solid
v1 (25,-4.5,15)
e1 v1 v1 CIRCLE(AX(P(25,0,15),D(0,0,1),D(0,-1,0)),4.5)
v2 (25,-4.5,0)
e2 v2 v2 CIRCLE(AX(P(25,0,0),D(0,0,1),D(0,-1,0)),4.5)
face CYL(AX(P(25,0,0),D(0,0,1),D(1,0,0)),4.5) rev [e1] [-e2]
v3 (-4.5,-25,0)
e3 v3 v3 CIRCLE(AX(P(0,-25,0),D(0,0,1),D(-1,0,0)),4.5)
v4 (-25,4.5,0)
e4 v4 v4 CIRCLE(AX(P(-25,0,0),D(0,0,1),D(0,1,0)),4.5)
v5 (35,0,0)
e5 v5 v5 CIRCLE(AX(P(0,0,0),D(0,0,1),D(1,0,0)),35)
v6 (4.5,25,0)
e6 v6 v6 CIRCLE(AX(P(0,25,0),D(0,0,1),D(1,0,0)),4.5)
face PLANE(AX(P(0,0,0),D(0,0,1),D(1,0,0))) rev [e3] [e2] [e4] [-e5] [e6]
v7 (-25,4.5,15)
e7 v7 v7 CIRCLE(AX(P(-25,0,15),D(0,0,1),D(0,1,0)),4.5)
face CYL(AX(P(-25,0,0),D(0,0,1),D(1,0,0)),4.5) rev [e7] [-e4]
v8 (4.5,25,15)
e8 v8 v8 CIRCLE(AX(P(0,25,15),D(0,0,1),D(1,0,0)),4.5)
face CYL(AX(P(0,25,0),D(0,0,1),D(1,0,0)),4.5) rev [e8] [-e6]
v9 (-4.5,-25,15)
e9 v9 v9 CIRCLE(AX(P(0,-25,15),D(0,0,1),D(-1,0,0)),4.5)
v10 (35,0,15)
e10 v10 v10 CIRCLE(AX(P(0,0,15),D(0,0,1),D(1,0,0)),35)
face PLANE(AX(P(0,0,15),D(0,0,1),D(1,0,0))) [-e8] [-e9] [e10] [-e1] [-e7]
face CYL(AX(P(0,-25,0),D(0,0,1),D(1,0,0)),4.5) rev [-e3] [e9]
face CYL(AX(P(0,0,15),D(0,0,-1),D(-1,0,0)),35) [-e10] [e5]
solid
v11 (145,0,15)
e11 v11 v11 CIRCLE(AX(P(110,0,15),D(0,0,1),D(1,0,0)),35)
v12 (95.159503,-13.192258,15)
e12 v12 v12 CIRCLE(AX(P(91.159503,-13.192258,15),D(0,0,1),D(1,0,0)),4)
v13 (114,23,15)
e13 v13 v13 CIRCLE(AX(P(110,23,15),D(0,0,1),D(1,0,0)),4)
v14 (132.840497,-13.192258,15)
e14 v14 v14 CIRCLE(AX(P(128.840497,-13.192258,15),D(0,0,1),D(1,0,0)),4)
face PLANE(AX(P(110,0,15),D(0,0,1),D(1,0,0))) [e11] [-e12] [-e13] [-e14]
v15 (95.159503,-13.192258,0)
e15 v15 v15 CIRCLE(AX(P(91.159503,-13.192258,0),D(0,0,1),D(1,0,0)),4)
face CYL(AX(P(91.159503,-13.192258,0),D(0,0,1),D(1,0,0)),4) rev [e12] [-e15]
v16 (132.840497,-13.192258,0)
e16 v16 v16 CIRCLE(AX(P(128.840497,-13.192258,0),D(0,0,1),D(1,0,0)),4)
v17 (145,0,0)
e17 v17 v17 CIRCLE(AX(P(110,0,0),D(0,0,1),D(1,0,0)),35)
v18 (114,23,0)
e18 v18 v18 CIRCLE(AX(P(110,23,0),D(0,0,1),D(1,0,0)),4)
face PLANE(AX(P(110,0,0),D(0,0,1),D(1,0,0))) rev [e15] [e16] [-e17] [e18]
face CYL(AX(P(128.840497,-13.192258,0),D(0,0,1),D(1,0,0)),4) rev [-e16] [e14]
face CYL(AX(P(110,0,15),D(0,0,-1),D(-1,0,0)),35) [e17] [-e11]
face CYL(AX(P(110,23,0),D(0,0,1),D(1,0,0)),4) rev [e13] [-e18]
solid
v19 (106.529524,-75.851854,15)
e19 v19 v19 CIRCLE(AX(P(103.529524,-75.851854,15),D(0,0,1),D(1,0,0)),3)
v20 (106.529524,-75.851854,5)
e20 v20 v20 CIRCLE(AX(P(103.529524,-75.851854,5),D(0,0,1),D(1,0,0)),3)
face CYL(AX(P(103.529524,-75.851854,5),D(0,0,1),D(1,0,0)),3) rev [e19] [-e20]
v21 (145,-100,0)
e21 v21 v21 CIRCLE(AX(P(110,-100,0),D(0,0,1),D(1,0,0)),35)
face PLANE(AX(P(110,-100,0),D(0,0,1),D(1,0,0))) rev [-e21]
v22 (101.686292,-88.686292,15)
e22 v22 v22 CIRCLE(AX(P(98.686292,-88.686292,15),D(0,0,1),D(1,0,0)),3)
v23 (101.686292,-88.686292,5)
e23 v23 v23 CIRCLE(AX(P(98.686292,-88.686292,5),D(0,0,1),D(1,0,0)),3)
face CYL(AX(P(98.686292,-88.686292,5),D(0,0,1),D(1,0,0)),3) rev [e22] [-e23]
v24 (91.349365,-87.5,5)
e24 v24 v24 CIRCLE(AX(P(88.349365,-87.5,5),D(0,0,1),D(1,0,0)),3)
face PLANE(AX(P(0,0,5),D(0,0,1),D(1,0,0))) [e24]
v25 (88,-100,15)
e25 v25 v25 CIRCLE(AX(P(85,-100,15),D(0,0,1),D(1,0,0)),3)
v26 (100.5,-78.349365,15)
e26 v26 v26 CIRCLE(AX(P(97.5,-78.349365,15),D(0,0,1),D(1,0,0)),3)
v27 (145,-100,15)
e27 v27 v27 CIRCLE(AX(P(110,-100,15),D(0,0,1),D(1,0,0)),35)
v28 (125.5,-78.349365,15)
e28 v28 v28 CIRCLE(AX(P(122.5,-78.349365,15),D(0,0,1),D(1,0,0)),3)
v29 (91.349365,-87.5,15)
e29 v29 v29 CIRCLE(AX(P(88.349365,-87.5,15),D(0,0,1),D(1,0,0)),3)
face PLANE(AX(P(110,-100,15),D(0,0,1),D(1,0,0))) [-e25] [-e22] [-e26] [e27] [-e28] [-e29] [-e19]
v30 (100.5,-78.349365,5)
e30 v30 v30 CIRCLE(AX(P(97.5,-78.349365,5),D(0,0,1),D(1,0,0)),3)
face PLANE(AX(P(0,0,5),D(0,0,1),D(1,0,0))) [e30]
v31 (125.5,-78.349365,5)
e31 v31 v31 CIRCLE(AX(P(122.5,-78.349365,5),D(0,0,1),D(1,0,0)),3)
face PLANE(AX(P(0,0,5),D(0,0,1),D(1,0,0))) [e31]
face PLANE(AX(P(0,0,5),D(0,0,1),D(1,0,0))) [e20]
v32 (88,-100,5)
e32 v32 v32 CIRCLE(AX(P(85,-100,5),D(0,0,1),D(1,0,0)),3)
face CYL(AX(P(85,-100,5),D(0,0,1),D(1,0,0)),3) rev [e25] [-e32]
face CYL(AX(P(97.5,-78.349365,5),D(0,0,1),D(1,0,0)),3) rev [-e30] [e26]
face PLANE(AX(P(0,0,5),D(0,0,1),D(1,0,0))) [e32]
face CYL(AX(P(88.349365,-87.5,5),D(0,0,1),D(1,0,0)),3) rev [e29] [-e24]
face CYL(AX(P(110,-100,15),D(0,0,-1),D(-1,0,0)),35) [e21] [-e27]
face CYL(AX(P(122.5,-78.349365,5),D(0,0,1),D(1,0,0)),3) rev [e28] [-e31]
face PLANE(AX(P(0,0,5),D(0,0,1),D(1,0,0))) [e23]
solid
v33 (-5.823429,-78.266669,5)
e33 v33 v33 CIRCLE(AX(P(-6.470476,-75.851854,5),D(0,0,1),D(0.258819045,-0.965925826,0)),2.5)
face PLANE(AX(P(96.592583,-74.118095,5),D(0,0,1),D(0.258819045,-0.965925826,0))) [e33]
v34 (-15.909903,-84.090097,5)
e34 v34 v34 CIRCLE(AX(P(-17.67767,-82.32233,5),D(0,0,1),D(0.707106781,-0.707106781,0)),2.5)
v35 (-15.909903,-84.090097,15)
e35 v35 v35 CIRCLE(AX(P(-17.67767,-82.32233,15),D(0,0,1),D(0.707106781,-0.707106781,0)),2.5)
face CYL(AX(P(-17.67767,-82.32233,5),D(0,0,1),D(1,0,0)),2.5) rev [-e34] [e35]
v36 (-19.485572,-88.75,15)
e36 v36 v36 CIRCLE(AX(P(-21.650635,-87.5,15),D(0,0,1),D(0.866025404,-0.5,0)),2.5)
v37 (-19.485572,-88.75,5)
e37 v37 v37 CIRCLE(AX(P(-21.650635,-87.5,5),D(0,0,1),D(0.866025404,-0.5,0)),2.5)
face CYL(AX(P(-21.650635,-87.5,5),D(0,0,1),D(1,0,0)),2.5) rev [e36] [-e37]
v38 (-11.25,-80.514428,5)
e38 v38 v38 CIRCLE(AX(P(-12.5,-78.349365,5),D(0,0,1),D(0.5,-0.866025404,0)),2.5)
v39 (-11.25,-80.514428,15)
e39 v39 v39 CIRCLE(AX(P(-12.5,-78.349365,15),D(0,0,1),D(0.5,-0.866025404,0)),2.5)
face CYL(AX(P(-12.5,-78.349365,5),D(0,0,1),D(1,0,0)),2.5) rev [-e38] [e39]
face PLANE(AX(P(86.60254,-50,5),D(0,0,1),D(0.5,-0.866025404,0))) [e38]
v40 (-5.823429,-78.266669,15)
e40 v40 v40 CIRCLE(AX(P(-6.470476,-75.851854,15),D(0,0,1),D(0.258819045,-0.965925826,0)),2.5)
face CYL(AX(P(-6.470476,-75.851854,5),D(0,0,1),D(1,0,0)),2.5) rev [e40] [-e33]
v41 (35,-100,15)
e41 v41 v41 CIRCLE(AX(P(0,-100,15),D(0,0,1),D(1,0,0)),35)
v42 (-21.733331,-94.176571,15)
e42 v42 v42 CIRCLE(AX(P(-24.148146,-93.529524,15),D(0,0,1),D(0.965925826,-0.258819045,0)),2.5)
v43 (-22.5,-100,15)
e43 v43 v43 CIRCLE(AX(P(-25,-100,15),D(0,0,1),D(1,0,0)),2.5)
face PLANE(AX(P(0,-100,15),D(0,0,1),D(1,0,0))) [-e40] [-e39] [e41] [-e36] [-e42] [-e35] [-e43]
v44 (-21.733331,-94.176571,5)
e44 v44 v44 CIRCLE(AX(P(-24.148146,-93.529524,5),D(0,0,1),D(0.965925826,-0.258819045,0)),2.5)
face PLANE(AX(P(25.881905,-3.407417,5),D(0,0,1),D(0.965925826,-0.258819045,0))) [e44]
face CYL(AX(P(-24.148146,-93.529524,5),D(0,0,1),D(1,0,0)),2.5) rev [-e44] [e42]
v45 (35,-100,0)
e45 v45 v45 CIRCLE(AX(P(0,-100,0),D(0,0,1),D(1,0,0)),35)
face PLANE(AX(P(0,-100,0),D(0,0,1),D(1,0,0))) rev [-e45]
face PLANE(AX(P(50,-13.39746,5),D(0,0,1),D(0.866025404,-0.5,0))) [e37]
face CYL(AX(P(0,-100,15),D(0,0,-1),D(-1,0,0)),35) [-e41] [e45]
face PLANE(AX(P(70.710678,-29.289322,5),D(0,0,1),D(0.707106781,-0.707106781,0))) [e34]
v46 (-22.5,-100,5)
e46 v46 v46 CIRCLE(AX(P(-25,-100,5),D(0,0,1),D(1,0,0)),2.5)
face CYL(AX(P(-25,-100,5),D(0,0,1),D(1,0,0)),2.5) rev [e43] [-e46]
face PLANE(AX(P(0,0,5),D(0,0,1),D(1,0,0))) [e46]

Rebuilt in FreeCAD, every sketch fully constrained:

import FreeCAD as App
import Part
import Sketcher

doc = App.newDocument("Part")
body = doc.addObject("PartDesign::Body", "Body")

sketch1 = body.newObject("Sketcher::SketchObject", "Sketch")
sketch1.AttachmentSupport = (doc.getObject("XY_Plane"), [""])
sketch1.MapMode = "FlatFace"
sketch1.addGeometry(Part.Circle(App.Vector(0, 0, 0), App.Vector(0, 0, 1), 35), False)
sketch1.addConstraint(Sketcher.Constraint("Coincident", 0, 3, -1, 1))
sketch1.addConstraint(Sketcher.Constraint("Diameter", 0, 70.0))
pad1 = body.newObject("PartDesign::Pad", "Pad")
pad1.Profile = sketch1
pad1.Length = 15

sketch2 = body.newObject("Sketcher::SketchObject", "Sketch001")
sketch2.AttachmentSupport = (doc.getObject("XY_Plane"), [""])
sketch2.MapMode = "FlatFace"
sketch2.AttachmentOffset = App.Placement(App.Vector(0, 0, 15), App.Rotation())
sketch2.addGeometry(Part.Circle(App.Vector(0, 25, 0), App.Vector(0, 0, 1), 4.5), False)
sketch2.addConstraint(Sketcher.Constraint("PointOnObject", 0, 3, -2))
sketch2.addConstraint(Sketcher.Constraint("Diameter", 0, 9.0))
sketch2.addConstraint(Sketcher.Constraint("DistanceY", -1, 1, 0, 3, 25.0))
pocket1 = body.newObject("PartDesign::Pocket", "Pocket")
pocket1.Profile = sketch2
pocket1.Type = "ThroughAll"
doc.recompute()

polarpattern = body.newObject("PartDesign::PolarPattern", "PolarPattern")
polarpattern.Originals = [pocket1]
polarpattern.Axis = (doc.getObject("Z_Axis"), [""])
polarpattern.Angle = 360
polarpattern.Occurrences = 4
body.Tip = polarpattern
body2 = doc.addObject("PartDesign::Body", "Body001")

sketch3 = body2.newObject("Sketcher::SketchObject", "Sketch002")
sketch3.AttachmentSupport = (doc.getObject("XY_Plane001"), [""])
sketch3.MapMode = "FlatFace"
sketch3.addGeometry(Part.Circle(App.Vector(110, 0, 0), App.Vector(0, 0, 1), 35), False)
sketch3.addConstraint(Sketcher.Constraint("PointOnObject", 0, 3, -1))
sketch3.addConstraint(Sketcher.Constraint("Diameter", 0, 70.0))
sketch3.addConstraint(Sketcher.Constraint("DistanceX", -1, 1, 0, 3, 110.0))
pad2 = body2.newObject("PartDesign::Pad", "Pad001")
pad2.Profile = sketch3
pad2.Length = 15

sketch4 = body2.newObject("Sketcher::SketchObject", "Sketch003")
sketch4.AttachmentSupport = (doc.getObject("XY_Plane001"), [""])
sketch4.MapMode = "FlatFace"
sketch4.AttachmentOffset = App.Placement(App.Vector(0, 0, 15), App.Rotation())
sketch4.addGeometry(Part.Circle(App.Vector(110, 23, 0), App.Vector(0, 0, 1), 4), False)
sketch4.addGeometry(Part.Circle(App.Vector(128.8, -13.2, 0), App.Vector(0, 0, 1), 4), False)
sketch4.addGeometry(Part.Circle(App.Vector(91.2, -13.2, 0), App.Vector(0, 0, 1), 4), False)
sketch4.addConstraint(Sketcher.Constraint("Equal", 0, 1))
sketch4.addConstraint(Sketcher.Constraint("Equal", 1, 2))
sketch4.addConstraint(Sketcher.Constraint("Horizontal", 1, 3, 2, 3))
sketch4.addConstraint(Sketcher.Constraint("Diameter", 0, 8.0))
sketch4.addConstraint(Sketcher.Constraint("DistanceX", -1, 1, 0, 3, 110.0))
sketch4.addConstraint(Sketcher.Constraint("DistanceY", -1, 1, 0, 3, 23.0))
sketch4.addConstraint(Sketcher.Constraint("DistanceY", 1, 3, -1, 1, 13.192258))
sketch4.addConstraint(Sketcher.Constraint("DistanceX", -1, 1, 1, 3, 128.840497))
sketch4.addConstraint(Sketcher.Constraint("DistanceX", -1, 1, 2, 3, 91.159503))
pocket2 = body2.newObject("PartDesign::Pocket", "Pocket001")
pocket2.Profile = sketch4
pocket2.Length = 15
body3 = doc.addObject("PartDesign::Body", "Body002")

sketch5 = body3.newObject("Sketcher::SketchObject", "Sketch004")
sketch5.AttachmentSupport = (doc.getObject("XY_Plane002"), [""])
sketch5.MapMode = "FlatFace"
sketch5.addGeometry(Part.Circle(App.Vector(0, -100, 0), App.Vector(0, 0, 1), 35), False)
sketch5.addConstraint(Sketcher.Constraint("PointOnObject", 0, 3, -2))
sketch5.addConstraint(Sketcher.Constraint("Diameter", 0, 70.0))
sketch5.addConstraint(Sketcher.Constraint("DistanceY", 0, 3, -1, 1, 100.0))
pad3 = body3.newObject("PartDesign::Pad", "Pad002")
pad3.Profile = sketch5
pad3.Length = 15

sketch6 = body3.newObject("Sketcher::SketchObject", "Sketch005")
sketch6.AttachmentSupport = (doc.getObject("XY_Plane002"), [""])
sketch6.MapMode = "FlatFace"
sketch6.AttachmentOffset = App.Placement(App.Vector(0, 0, 15), App.Rotation())
sketch6.addGeometry(Part.Circle(App.Vector(-25, -100, 0), App.Vector(0, 0, 1), 2.5), False)
sketch6.addConstraint(Sketcher.Constraint("Diameter", 0, 5.0))
sketch6.addConstraint(Sketcher.Constraint("DistanceX", 0, 3, -1, 1, 25.0))
sketch6.addConstraint(Sketcher.Constraint("DistanceY", 0, 3, -1, 1, 100.0))
pocket3 = body3.newObject("PartDesign::Pocket", "Pocket002")
pocket3.Profile = sketch6
pocket3.Length = 10
doc.recompute()

datumline = body3.newObject("PartDesign::Line", "DatumLine")
datumline.Placement = App.Placement(App.Vector(0, -100, 0), App.Rotation(App.Vector(0, 0, 1), App.Vector(0, 0, -1)))
polarpattern2 = body3.newObject("PartDesign::PolarPattern", "PolarPattern001")
polarpattern2.Originals = [pocket3]
polarpattern2.Axis = (datumline, [""])
polarpattern2.Angle = 75
polarpattern2.Occurrences = 6
body3.Tip = polarpattern2
body4 = doc.addObject("PartDesign::Body", "Body003")

sketch7 = body4.newObject("Sketcher::SketchObject", "Sketch006")
sketch7.AttachmentSupport = (doc.getObject("XY_Plane003"), [""])
sketch7.MapMode = "FlatFace"
sketch7.addGeometry(Part.Circle(App.Vector(110, -100, 0), App.Vector(0, 0, 1), 35), False)
sketch7.addConstraint(Sketcher.Constraint("Diameter", 0, 70.0))
sketch7.addConstraint(Sketcher.Constraint("DistanceX", -1, 1, 0, 3, 110.0))
sketch7.addConstraint(Sketcher.Constraint("DistanceY", 0, 3, -1, 1, 100.0))
pad4 = body4.newObject("PartDesign::Pad", "Pad003")
pad4.Profile = sketch7
pad4.Length = 15

sketch8 = body4.newObject("Sketcher::SketchObject", "Sketch007")
sketch8.AttachmentSupport = (doc.getObject("XY_Plane003"), [""])
sketch8.MapMode = "FlatFace"
sketch8.AttachmentOffset = App.Placement(App.Vector(0, 0, 15), App.Rotation())
sketch8.addGeometry(Part.Circle(App.Vector(85, -100, 0), App.Vector(0, 0, 1), 3), False)
sketch8.addGeometry(Part.Circle(App.Vector(88.3, -87.5, 0), App.Vector(0, 0, 1), 3), False)
sketch8.addGeometry(Part.Circle(App.Vector(97.5, -78.3, 0), App.Vector(0, 0, 1), 3), False)
sketch8.addGeometry(Part.Circle(App.Vector(103.5, -75.9, 0), App.Vector(0, 0, 1), 3), False)
sketch8.addGeometry(Part.Circle(App.Vector(98.7, -88.7, 0), App.Vector(0, 0, 1), 3), False)
sketch8.addGeometry(Part.Circle(App.Vector(122.5, -78.3, 0), App.Vector(0, 0, 1), 3), False)
sketch8.addConstraint(Sketcher.Constraint("Equal", 0, 1))
sketch8.addConstraint(Sketcher.Constraint("Equal", 1, 2))
sketch8.addConstraint(Sketcher.Constraint("Equal", 2, 3))
sketch8.addConstraint(Sketcher.Constraint("Equal", 3, 4))
sketch8.addConstraint(Sketcher.Constraint("Equal", 4, 5))
sketch8.addConstraint(Sketcher.Constraint("Horizontal", 2, 3, 5, 3))
sketch8.addConstraint(Sketcher.Constraint("Diameter", 0, 6.0))
sketch8.addConstraint(Sketcher.Constraint("DistanceX", -1, 1, 0, 3, 85.0))
sketch8.addConstraint(Sketcher.Constraint("DistanceY", 0, 3, -1, 1, 100.0))
sketch8.addConstraint(Sketcher.Constraint("DistanceX", 2, 3, 5, 3, 25.0))
sketch8.addConstraint(Sketcher.Constraint("DistanceY", 1, 3, -1, 1, 87.5))
sketch8.addConstraint(Sketcher.Constraint("DistanceX", -1, 1, 2, 3, 97.5))
sketch8.addConstraint(Sketcher.Constraint("DistanceX", -1, 1, 4, 3, 98.686292))
sketch8.addConstraint(Sketcher.Constraint("DistanceY", 4, 3, -1, 1, 88.686292))
sketch8.addConstraint(Sketcher.Constraint("DistanceY", 2, 3, 3, 3, 2.497511))
sketch8.addConstraint(Sketcher.Constraint("DistanceX", 1, 3, 3, 3, 15.180159))
sketch8.addConstraint(Sketcher.Constraint("DistanceX", -1, 1, 1, 3, 88.349365))
sketch8.addConstraint(Sketcher.Constraint("DistanceY", 2, 3, -1, 1, 78.349365))
pocket4 = body4.newObject("PartDesign::Pocket", "Pocket003")
pocket4.Profile = sketch8
pocket4.Length = 10

doc.recompute()
